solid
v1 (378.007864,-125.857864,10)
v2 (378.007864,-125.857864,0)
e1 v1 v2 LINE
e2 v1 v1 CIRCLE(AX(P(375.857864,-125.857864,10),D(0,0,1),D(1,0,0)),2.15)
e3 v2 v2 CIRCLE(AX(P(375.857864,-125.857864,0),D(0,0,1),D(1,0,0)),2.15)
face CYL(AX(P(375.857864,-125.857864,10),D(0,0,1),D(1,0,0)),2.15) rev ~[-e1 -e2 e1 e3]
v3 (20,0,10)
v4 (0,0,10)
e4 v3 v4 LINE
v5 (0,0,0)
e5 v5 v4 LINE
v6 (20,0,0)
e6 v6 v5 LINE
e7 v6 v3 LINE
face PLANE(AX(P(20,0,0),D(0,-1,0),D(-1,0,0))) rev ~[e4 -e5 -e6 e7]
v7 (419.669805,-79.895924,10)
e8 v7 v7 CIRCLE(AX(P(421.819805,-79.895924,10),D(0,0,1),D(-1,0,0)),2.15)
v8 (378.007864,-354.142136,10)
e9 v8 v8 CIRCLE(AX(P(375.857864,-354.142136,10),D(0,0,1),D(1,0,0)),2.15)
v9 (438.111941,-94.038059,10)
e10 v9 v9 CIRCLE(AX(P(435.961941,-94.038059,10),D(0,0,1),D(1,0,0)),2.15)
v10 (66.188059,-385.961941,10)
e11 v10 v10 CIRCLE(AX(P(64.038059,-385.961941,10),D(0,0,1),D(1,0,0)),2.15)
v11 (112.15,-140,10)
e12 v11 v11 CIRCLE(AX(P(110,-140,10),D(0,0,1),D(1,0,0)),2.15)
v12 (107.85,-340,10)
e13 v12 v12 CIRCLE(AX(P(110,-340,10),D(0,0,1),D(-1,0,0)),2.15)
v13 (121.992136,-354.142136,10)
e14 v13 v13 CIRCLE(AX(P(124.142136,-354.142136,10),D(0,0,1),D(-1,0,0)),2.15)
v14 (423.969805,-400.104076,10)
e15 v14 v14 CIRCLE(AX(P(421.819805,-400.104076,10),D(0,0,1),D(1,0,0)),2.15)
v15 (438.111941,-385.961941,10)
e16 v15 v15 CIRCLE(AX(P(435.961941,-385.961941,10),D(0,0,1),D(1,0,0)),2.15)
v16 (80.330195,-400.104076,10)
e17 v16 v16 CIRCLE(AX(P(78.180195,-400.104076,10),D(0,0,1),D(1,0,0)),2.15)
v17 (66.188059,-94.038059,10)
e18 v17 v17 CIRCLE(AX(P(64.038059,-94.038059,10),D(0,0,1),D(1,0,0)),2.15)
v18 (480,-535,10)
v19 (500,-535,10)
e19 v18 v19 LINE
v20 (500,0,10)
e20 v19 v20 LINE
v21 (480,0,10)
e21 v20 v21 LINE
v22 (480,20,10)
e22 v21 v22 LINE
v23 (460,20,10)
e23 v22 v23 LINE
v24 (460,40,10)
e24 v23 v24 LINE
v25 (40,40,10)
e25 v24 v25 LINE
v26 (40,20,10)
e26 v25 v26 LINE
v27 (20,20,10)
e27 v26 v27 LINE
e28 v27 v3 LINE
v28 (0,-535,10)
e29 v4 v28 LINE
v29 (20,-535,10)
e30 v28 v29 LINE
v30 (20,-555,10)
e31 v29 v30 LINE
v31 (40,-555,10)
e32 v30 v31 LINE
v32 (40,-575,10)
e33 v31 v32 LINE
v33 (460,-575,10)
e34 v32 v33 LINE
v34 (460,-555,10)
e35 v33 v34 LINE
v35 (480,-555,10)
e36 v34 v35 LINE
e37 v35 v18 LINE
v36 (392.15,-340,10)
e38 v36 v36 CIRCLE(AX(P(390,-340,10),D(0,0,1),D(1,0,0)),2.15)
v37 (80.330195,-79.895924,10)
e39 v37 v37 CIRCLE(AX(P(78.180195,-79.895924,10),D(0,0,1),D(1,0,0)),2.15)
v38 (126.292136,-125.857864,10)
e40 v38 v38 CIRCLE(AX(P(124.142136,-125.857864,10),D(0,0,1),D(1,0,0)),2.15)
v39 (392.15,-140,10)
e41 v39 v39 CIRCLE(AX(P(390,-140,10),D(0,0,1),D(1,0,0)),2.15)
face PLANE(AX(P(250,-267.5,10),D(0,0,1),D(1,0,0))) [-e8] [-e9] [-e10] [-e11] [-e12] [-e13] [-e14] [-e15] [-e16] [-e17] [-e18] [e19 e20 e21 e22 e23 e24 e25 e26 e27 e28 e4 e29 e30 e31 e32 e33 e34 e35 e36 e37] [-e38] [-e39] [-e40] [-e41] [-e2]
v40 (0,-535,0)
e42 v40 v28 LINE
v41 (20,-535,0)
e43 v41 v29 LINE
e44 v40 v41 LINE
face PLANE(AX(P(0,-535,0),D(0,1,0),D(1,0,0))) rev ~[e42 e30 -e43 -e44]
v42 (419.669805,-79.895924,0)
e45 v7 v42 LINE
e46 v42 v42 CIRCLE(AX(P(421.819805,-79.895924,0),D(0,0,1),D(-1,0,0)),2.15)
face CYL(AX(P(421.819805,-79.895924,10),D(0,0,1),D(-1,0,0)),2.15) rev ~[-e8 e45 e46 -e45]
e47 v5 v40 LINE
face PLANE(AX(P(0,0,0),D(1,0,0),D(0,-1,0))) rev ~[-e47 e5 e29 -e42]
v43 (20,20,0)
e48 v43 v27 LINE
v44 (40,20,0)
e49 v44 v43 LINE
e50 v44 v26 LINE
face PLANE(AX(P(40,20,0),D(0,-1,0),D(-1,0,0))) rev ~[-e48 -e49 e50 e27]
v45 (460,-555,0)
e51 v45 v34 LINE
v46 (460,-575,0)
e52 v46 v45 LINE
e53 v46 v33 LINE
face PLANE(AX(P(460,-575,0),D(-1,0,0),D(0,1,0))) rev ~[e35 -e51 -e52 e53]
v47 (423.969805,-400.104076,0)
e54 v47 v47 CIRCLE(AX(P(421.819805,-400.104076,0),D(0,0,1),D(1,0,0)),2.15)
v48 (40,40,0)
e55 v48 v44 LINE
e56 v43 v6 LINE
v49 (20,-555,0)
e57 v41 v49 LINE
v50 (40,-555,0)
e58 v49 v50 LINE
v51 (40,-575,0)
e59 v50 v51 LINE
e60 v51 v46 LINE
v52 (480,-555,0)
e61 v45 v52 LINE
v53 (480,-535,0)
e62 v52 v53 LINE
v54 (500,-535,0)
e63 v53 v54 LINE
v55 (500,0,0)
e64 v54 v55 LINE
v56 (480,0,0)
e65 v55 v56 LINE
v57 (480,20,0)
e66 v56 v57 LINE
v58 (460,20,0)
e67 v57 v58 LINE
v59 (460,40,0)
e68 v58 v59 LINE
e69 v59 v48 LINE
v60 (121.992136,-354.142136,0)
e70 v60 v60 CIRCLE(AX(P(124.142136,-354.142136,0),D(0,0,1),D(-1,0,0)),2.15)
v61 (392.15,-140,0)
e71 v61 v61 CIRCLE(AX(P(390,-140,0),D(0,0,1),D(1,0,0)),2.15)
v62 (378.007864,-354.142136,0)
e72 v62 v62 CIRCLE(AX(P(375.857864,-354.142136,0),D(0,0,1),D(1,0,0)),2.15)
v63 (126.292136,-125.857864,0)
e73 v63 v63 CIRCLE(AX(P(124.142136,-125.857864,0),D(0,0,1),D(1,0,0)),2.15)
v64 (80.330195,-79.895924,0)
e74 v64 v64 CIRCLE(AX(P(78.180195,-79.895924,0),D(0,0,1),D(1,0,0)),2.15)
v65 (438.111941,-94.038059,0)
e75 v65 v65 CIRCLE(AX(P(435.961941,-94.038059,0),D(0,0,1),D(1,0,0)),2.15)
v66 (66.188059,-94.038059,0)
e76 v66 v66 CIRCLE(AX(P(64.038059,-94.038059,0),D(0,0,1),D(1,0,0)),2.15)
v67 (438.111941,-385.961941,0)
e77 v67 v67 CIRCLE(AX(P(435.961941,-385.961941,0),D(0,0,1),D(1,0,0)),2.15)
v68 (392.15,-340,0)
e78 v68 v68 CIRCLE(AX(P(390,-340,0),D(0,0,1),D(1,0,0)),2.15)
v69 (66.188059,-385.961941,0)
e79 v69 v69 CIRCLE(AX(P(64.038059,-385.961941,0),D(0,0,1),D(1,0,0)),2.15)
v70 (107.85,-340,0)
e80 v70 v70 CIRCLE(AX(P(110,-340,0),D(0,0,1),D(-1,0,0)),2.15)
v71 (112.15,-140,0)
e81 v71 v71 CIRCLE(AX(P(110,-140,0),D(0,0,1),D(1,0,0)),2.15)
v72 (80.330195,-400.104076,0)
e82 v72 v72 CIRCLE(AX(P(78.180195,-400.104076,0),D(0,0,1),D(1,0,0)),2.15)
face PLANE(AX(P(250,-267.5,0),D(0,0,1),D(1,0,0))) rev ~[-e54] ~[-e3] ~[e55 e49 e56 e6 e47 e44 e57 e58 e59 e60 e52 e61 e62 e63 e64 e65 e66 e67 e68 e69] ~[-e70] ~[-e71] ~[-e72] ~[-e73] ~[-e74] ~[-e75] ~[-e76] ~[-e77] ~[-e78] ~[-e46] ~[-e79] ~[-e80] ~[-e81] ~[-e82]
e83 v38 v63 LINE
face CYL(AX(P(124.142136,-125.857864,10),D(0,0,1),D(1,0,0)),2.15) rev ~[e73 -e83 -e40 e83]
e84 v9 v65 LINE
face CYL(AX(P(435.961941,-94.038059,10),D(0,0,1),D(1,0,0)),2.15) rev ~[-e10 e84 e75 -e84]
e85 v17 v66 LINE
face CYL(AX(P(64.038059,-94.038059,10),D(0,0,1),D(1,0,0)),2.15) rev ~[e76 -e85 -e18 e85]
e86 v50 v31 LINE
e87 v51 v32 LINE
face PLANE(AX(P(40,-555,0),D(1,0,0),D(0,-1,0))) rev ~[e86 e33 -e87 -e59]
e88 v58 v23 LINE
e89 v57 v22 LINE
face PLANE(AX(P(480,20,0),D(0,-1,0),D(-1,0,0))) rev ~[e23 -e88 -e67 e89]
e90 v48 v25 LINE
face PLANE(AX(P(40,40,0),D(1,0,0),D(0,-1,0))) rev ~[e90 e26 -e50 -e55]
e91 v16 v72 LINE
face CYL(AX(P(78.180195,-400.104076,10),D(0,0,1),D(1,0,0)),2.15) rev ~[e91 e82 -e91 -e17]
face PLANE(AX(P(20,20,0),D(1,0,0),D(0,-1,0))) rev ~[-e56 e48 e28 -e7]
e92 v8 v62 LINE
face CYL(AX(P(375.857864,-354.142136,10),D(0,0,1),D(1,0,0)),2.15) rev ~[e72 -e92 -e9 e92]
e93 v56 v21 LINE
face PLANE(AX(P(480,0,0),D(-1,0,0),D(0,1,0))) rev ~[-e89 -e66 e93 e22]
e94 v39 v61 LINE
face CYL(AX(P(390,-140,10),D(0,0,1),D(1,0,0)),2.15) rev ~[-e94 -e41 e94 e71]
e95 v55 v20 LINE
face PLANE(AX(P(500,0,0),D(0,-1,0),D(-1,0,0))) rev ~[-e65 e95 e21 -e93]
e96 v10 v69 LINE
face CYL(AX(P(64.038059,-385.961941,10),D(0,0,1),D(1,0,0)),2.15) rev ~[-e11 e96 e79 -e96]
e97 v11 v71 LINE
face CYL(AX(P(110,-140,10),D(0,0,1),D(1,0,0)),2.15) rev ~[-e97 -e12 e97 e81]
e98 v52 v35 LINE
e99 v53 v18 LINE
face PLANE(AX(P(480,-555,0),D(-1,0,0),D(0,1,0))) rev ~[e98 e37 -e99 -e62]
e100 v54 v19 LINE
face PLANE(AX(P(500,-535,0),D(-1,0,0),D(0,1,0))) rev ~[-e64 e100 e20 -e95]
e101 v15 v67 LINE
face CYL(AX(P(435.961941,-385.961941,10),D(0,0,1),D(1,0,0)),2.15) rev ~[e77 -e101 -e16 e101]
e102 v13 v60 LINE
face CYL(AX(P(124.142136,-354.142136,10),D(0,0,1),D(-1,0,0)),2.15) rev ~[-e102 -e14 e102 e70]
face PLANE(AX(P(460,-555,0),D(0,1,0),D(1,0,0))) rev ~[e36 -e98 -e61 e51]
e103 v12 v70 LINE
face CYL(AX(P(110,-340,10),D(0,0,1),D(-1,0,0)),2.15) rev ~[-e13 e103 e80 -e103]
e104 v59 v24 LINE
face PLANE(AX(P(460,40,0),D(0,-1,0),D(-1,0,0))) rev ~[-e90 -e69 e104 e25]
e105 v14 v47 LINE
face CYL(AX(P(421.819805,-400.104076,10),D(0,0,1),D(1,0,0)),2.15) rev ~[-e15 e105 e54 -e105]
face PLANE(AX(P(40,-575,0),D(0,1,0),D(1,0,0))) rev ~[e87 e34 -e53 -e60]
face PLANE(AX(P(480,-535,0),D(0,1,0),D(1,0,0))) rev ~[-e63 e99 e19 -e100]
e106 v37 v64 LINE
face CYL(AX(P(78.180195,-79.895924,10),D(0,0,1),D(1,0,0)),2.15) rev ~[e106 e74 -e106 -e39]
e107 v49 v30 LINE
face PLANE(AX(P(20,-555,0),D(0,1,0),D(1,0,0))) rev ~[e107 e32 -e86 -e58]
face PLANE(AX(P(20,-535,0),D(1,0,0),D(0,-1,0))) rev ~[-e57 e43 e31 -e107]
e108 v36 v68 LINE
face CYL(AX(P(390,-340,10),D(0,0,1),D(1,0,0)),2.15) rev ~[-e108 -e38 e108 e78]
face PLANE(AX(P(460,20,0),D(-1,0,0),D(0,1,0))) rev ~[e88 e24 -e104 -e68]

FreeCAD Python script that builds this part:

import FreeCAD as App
import Part
import Sketcher
from FreeCAD import Vector


def add_polygon(sketch, points):
    """Adds a closed chain of lines whose ends are joined by coincident constraints."""
    first, n = sketch.GeometryCount, len(points)
    for a, b in zip(points, points[1:] + points[:1]):
        sketch.addGeometry(Part.LineSegment(App.Vector(*a, 0), App.Vector(*b, 0)), False)
    for i in range(n):
        sketch.addConstraint(Sketcher.Constraint("Coincident", first + i, 2, first + (i + 1) % n, 1))

doc = App.newDocument("Part")
body = doc.addObject("PartDesign::Body", "Body")

# Sketch on XY plane
sketch1 = body.newObject("Sketcher::SketchObject", "Sketch")
sketch1.AttachmentSupport = (doc.getObject("XY_Plane"), [""])
sketch1.MapMode = "FlatFace"
add_polygon(sketch1, [(0, 0), (0, -535), (20, -535), (20, -555), (40, -555), (40, -575), (460, -575), (460, -555), (480, -555), (480, -535), (500, -535), (500, 0), (480, 0), (480, 20), (460, 20), (460, 40), (40, 40), (40, 20), (20, 20), (20, 0)])  # lines 0-19
sketch1.addConstraint([
    Sketcher.Constraint("Vertical", 0),
    Sketcher.Constraint("Horizontal", 1),
    Sketcher.Constraint("Vertical", 2),
    Sketcher.Constraint("Horizontal", 3),
    Sketcher.Constraint("Vertical", 4),
    Sketcher.Constraint("Horizontal", 5),
    Sketcher.Constraint("Vertical", 6),
    Sketcher.Constraint("Horizontal", 7),
    Sketcher.Constraint("Vertical", 8),
    Sketcher.Constraint("Horizontal", 9),
    Sketcher.Constraint("Vertical", 10),
    Sketcher.Constraint("Horizontal", 11),
    Sketcher.Constraint("Vertical", 12),
    Sketcher.Constraint("Horizontal", 13),
    Sketcher.Constraint("Vertical", 14),
    Sketcher.Constraint("Horizontal", 15),
    Sketcher.Constraint("Vertical", 16),
    Sketcher.Constraint("Horizontal", 17),
    Sketcher.Constraint("Vertical", 18),
    Sketcher.Constraint("Horizontal", 19),
    Sketcher.Constraint("Coincident", 19, 2, -1, 1),
    Sketcher.Constraint("PointOnObject", 10, 2, -1),
    Sketcher.Constraint("Horizontal", 3, 2, 6, 2),
    Sketcher.Constraint("Horizontal", 1, 2, 8, 2),
    Sketcher.Constraint("Horizontal", 13, 2, 16, 2),
    Sketcher.Constraint("Vertical", 8, 2, 11, 2),
    Sketcher.Constraint("Vertical", 6, 2, 13, 2),
    Sketcher.Constraint("Vertical", 4, 2, 15, 2),
    Sketcher.Constraint("Vertical", 2, 2, 17, 2),
    Sketcher.Constraint("Equal", 1, 3),
    Sketcher.Constraint("Equal", 3, 7),
    Sketcher.Constraint("Equal", 7, 9),
    Sketcher.Constraint("Equal", 19, 2),
    Sketcher.Constraint("Equal", 2, 4),
    Sketcher.Constraint("Equal", 8, 12),
    Sketcher.Constraint("Equal", 12, 14),
    Sketcher.Constraint("DistanceX", 1, 1, 1, 2, 20.0),
    Sketcher.Constraint("DistanceX", 5, 1, 5, 2, 420.0),
    Sketcher.Constraint("DistanceY", 0, 2, 0, 1, 535.0),
])
pad1 = body.newObject("PartDesign::Pad", "Pad")
pad1.Profile = sketch1
pad1.Length = 10

# Sketch on XY plane
sketch2 = body.newObject("Sketcher::SketchObject", "Sketch001")
sketch2.AttachmentSupport = (doc.getObject("XY_Plane"), [""])
sketch2.MapMode = "FlatFace"
sketch2.AttachmentOffset = App.Placement(Vector(0, 0, 10), App.Rotation())
sketch2.addGeometry([
    Part.Circle(Vector(64, -94, 0), Vector(0, 0, 1), 2.1),  # 0
    Part.Circle(Vector(78.2, -79.9, 0), Vector(0, 0, 1), 2.1),  # 1
    Part.Circle(Vector(110, -140, 0), Vector(0, 0, 1), 2.1),  # 2
    Part.Circle(Vector(124.1, -125.9, 0), Vector(0, 0, 1), 2.1),  # 3
    Part.Circle(Vector(390, -140, 0), Vector(0, 0, 1), 2.1),  # 4
    Part.Circle(Vector(375.9, -125.9, 0), Vector(0, 0, 1), 2.1),  # 5
    Part.Circle(Vector(436, -94, 0), Vector(0, 0, 1), 2.1),  # 6
    Part.Circle(Vector(421.8, -79.9, 0), Vector(0, 0, 1), 2.1),  # 7
    Part.Circle(Vector(421.8, -400.1, 0), Vector(0, 0, 1), 2.1),  # 8
    Part.Circle(Vector(436, -386, 0), Vector(0, 0, 1), 2.1),  # 9
    Part.Circle(Vector(375.9, -354.1, 0), Vector(0, 0, 1), 2.1),  # 10
    Part.Circle(Vector(390, -340, 0), Vector(0, 0, 1), 2.1),  # 11
    Part.Circle(Vector(124.1, -354.1, 0), Vector(0, 0, 1), 2.1),  # 12
    Part.Circle(Vector(110, -340, 0), Vector(0, 0, 1), 2.1),  # 13
    Part.Circle(Vector(78.2, -400.1, 0), Vector(0, 0, 1), 2.1),  # 14
    Part.Circle(Vector(64, -386, 0), Vector(0, 0, 1), 2.1),  # 15
], False)
sketch2.addConstraint([
    Sketcher.Constraint("Equal", 0, 1),
    Sketcher.Constraint("Equal", 1, 2),
    Sketcher.Constraint("Equal", 2, 3),
    Sketcher.Constraint("Equal", 3, 4),
    Sketcher.Constraint("Equal", 4, 5),
    Sketcher.Constraint("Equal", 5, 6),
    Sketcher.Constraint("Equal", 6, 7),
    Sketcher.Constraint("Equal", 7, 8),
    Sketcher.Constraint("Equal", 8, 9),
    Sketcher.Constraint("Equal", 9, 10),
    Sketcher.Constraint("Equal", 10, 11),
    Sketcher.Constraint("Equal", 11, 12),
    Sketcher.Constraint("Equal", 12, 13),
    Sketcher.Constraint("Equal", 13, 14),
    Sketcher.Constraint("Equal", 14, 15),
    Sketcher.Constraint("Horizontal", 2, 3, 4, 3),
    Sketcher.Constraint("Horizontal", 3, 3, 5, 3),
    Sketcher.Constraint("Horizontal", 0, 3, 6, 3),
    Sketcher.Constraint("Horizontal", 1, 3, 7, 3),
    Sketcher.Constraint("Horizontal", 10, 3, 12, 3),
    Sketcher.Constraint("Horizontal", 11, 3, 13, 3),
    Sketcher.Constraint("Horizontal", 8, 3, 14, 3),
    Sketcher.Constraint("Horizontal", 9, 3, 15, 3),
    Sketcher.Constraint("Vertical", 7, 3, 8, 3),
    Sketcher.Constraint("Vertical", 6, 3, 9, 3),
    Sketcher.Constraint("Vertical", 5, 3, 10, 3),
    Sketcher.Constraint("Vertical", 4, 3, 11, 3),
    Sketcher.Constraint("Vertical", 3, 3, 12, 3),
    Sketcher.Constraint("Vertical", 2, 3, 13, 3),
    Sketcher.Constraint("Vertical", 1, 3, 14, 3),
    Sketcher.Constraint("Vertical", 0, 3, 15, 3),
    Sketcher.Constraint("Diameter", 0, 4.3),
    Sketcher.Constraint("DistanceX", -1, 1, 2, 3, 110.0),
    Sketcher.Constraint("DistanceY", 2, 3, -1, 1, 140.0),
    Sketcher.Constraint("DistanceX", -1, 1, 4, 3, 390.0),
    Sketcher.Constraint("DistanceY", 11, 3, -1, 1, 340.0),
    Sketcher.Constraint("DistanceX", -1, 1, 0, 3, 64.038059),
    Sketcher.Constraint("DistanceY", 0, 3, -1, 1, 94.038059),
    Sketcher.Constraint("DistanceX", -1, 1, 6, 3, 435.961941),
    Sketcher.Constraint("DistanceY", 9, 3, -1, 1, 385.961941),
    Sketcher.Constraint("DistanceX", 1, 3, 3, 3, 45.961941),
    Sketcher.Constraint("DistanceY", 3, 3, 1, 3, 45.961941),
    Sketcher.Constraint("DistanceX", 3, 3, 5, 3, 251.715729),
    Sketcher.Constraint("DistanceX", 5, 3, 7, 3, 45.961941),
    Sketcher.Constraint("DistanceY", 8, 3, 10, 3, 45.961941),
    Sketcher.Constraint("DistanceY", 10, 3, 5, 3, 228.284271),
    Sketcher.Constraint("DistanceX", -1, 1, 1, 3, 78.180195),
    Sketcher.Constraint("DistanceY", 1, 3, -1, 1, 79.895924),
])
pocket1 = body.newObject("PartDesign::Pocket", "Pocket")
pocket1.Profile = sketch2
pocket1.Length = 10

doc.recompute()
